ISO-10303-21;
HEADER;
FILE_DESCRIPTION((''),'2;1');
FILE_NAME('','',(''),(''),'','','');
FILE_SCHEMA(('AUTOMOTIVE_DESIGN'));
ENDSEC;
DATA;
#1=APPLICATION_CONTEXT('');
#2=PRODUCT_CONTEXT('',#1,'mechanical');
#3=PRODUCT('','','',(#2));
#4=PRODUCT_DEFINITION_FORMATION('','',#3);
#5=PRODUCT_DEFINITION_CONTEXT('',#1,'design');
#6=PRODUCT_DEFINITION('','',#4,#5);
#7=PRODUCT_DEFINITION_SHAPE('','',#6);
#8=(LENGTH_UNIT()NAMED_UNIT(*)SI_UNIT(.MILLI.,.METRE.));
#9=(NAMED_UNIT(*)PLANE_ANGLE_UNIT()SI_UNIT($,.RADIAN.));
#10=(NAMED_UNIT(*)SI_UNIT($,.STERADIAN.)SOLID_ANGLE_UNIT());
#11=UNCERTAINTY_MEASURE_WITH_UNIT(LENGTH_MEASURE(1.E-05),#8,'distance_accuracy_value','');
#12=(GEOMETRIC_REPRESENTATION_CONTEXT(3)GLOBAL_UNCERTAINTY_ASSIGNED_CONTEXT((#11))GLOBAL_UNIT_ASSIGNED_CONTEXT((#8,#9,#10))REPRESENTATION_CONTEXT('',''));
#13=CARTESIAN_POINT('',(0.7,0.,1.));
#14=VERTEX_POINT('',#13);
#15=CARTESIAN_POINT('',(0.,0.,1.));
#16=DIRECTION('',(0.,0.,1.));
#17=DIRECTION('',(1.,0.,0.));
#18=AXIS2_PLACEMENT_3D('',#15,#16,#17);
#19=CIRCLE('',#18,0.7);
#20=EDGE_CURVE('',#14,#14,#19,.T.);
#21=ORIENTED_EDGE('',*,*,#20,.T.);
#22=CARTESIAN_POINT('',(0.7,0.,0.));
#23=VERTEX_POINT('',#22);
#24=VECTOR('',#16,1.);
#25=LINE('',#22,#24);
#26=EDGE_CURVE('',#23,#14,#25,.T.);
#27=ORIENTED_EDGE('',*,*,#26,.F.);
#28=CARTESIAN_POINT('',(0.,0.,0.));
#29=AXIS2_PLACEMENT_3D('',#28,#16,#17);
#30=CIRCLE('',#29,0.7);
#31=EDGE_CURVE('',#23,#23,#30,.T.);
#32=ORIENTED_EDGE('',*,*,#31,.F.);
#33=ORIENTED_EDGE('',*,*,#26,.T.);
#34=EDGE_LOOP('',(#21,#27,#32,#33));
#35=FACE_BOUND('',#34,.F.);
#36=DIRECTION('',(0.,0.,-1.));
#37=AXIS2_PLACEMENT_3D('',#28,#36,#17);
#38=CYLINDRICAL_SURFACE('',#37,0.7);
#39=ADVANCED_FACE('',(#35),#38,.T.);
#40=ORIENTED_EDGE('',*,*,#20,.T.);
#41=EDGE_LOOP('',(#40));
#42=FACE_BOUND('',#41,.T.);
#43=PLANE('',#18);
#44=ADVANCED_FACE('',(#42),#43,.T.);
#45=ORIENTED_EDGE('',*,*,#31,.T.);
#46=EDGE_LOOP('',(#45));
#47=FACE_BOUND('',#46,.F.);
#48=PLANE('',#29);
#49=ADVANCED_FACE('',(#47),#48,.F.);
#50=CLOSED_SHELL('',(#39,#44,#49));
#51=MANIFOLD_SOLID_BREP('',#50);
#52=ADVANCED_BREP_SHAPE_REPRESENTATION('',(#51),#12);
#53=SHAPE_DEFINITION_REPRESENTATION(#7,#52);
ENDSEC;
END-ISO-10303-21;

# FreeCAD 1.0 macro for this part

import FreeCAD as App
import Part
import Sketcher
from FreeCAD import Vector

doc = App.newDocument("Part")
params = doc.addObject("Spreadsheet::Sheet", "Params")
for row, (alias, value) in enumerate([
    ("sketch1_diameter", "1.4 mm"),
    ("pad1_length", "1 mm"),
], start=1):
    params.set(f"A{row}", alias)
    params.set(f"B{row}", "=" + value)
    params.setAlias(f"B{row}", alias)

body = doc.addObject("PartDesign::Body", "Body")

sketch1 = doc.addObject("Sketcher::SketchObject", "Sketch")
body.addObject(sketch1)
sketch1.AttachmentSupport = (doc.XY_Plane, [""])
sketch1.MapMode = "FlatFace"
sketch1.addGeometry(Part.Circle(Vector(0, 0, 0), Vector(0, 0, 1), 0.7), False)
sketch1.addConstraint([
    Sketcher.Constraint("Coincident", 0, 3, -1, 1),
    Sketcher.Constraint("Diameter", 0, 1.4),
])
sketch1.setExpression("Constraints[1]", "Params.sketch1_diameter")
pad1 = doc.addObject("PartDesign::Pad", "Pad")
body.addObject(pad1)
pad1.Profile = sketch1
pad1.setExpression("Length", "Params.pad1_length")

doc.recompute()
